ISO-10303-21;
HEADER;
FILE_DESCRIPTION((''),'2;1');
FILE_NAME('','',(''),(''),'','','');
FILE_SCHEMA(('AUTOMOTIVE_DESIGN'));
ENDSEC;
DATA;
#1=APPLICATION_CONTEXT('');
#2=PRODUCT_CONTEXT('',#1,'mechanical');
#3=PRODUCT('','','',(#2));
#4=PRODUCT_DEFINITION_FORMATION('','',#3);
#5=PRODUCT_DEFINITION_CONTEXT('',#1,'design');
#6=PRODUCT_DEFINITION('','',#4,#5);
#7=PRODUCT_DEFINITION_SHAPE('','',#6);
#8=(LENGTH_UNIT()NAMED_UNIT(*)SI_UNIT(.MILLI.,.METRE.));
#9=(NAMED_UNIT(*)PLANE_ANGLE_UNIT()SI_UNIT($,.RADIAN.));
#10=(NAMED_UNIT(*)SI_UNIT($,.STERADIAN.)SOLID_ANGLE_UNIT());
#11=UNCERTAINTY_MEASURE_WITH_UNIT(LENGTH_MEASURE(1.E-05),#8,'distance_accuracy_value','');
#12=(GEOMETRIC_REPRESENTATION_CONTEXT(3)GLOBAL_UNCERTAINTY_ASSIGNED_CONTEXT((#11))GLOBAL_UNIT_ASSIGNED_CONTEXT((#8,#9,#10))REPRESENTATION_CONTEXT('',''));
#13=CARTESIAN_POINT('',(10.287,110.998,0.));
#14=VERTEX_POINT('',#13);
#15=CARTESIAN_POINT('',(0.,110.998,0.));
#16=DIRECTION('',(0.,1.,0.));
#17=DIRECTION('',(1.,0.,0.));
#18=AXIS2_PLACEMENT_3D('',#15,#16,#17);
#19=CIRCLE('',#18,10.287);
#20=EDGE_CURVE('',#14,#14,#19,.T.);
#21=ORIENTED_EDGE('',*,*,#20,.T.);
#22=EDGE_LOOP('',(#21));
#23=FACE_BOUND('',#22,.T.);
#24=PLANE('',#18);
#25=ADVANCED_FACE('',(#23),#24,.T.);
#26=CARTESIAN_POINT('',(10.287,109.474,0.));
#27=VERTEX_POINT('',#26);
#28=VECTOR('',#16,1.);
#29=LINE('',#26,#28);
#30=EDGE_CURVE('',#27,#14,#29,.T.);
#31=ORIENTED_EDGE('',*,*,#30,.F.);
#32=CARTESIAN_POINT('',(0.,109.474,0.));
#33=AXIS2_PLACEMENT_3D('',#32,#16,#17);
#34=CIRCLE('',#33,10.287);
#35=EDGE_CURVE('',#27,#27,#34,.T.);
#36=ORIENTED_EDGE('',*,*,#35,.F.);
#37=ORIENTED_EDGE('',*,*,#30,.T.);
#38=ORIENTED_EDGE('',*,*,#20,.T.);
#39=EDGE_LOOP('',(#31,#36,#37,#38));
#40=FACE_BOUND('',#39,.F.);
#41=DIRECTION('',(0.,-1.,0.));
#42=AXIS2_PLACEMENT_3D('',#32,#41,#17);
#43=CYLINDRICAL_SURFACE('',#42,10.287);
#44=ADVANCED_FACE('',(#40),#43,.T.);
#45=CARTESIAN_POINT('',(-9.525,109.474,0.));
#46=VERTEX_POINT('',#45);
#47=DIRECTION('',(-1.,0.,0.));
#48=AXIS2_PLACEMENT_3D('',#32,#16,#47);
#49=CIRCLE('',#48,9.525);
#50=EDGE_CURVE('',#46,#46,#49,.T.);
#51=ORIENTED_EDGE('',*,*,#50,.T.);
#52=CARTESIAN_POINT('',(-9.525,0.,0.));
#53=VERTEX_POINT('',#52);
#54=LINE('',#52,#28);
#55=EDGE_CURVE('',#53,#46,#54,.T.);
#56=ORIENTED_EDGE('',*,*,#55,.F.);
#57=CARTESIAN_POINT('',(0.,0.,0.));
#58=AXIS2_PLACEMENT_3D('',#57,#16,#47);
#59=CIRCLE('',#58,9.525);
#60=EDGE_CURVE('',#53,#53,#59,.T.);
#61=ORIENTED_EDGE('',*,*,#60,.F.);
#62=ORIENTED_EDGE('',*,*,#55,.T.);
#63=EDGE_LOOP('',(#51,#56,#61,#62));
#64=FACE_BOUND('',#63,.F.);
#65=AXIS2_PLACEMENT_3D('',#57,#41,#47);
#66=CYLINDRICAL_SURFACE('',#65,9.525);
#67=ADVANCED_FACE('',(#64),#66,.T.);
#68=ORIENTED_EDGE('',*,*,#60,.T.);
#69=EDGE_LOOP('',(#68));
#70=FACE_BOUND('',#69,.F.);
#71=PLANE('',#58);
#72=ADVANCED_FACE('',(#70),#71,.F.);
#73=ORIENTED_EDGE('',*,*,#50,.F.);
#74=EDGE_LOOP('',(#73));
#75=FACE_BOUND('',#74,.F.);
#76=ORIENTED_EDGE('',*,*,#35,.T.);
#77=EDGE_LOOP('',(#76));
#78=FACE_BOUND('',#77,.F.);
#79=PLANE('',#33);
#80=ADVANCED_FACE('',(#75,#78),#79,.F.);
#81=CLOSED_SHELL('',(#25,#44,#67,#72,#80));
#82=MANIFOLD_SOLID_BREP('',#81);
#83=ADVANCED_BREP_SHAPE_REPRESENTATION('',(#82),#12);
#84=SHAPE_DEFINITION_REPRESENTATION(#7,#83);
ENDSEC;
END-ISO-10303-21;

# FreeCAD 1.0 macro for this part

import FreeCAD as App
import Part
import Sketcher
from FreeCAD import Vector
Q = App.Units.Quantity

doc = App.newDocument("Part")
body = doc.addObject("PartDesign::Body", "Body")

# Sketch on XZ plane
sketch1 = doc.addObject("Sketcher::SketchObject", "Sketch")
body.addObject(sketch1)
sketch1.AttachmentSupport = (doc.XZ_Plane, [""])
sketch1.MapMode = "FlatFace"
sketch1.addGeometry(Part.Circle(Vector(0, 0, 0), Vector(0, 0, 1), 9.525), False)
sketch1.addConstraint([
    Sketcher.Constraint("Coincident", 0, 3, -1, 1),
    Sketcher.Constraint("Diameter", 0, Q("0.75 in")),
])
pad1 = doc.addObject("PartDesign::Pad", "Pad")
body.addObject(pad1)
pad1.Profile = sketch1
pad1.Length = Q("4.31 in")
pad1.Reversed = True

# Sketch on XZ plane
sketch2 = doc.addObject("Sketcher::SketchObject", "Sketch001")
body.addObject(sketch2)
sketch2.AttachmentSupport = (doc.XZ_Plane, [""])
sketch2.MapMode = "FlatFace"
sketch2.AttachmentOffset = App.Placement(Vector(0, 0, -4.31 * 25.4), App.Rotation())
sketch2.addGeometry(Part.Circle(Vector(0, 0, 0), Vector(0, 0, 1), 10.287), False)
sketch2.addConstraint([
    Sketcher.Constraint("Coincident", 0, 3, -1, 1),
    Sketcher.Constraint("Diameter", 0, Q("0.81 in")),
])
pad2 = doc.addObject("PartDesign::Pad", "Pad001")
body.addObject(pad2)
pad2.Profile = sketch2
pad2.Length = Q("0.06 in")
pad2.Reversed = True

doc.recompute()
